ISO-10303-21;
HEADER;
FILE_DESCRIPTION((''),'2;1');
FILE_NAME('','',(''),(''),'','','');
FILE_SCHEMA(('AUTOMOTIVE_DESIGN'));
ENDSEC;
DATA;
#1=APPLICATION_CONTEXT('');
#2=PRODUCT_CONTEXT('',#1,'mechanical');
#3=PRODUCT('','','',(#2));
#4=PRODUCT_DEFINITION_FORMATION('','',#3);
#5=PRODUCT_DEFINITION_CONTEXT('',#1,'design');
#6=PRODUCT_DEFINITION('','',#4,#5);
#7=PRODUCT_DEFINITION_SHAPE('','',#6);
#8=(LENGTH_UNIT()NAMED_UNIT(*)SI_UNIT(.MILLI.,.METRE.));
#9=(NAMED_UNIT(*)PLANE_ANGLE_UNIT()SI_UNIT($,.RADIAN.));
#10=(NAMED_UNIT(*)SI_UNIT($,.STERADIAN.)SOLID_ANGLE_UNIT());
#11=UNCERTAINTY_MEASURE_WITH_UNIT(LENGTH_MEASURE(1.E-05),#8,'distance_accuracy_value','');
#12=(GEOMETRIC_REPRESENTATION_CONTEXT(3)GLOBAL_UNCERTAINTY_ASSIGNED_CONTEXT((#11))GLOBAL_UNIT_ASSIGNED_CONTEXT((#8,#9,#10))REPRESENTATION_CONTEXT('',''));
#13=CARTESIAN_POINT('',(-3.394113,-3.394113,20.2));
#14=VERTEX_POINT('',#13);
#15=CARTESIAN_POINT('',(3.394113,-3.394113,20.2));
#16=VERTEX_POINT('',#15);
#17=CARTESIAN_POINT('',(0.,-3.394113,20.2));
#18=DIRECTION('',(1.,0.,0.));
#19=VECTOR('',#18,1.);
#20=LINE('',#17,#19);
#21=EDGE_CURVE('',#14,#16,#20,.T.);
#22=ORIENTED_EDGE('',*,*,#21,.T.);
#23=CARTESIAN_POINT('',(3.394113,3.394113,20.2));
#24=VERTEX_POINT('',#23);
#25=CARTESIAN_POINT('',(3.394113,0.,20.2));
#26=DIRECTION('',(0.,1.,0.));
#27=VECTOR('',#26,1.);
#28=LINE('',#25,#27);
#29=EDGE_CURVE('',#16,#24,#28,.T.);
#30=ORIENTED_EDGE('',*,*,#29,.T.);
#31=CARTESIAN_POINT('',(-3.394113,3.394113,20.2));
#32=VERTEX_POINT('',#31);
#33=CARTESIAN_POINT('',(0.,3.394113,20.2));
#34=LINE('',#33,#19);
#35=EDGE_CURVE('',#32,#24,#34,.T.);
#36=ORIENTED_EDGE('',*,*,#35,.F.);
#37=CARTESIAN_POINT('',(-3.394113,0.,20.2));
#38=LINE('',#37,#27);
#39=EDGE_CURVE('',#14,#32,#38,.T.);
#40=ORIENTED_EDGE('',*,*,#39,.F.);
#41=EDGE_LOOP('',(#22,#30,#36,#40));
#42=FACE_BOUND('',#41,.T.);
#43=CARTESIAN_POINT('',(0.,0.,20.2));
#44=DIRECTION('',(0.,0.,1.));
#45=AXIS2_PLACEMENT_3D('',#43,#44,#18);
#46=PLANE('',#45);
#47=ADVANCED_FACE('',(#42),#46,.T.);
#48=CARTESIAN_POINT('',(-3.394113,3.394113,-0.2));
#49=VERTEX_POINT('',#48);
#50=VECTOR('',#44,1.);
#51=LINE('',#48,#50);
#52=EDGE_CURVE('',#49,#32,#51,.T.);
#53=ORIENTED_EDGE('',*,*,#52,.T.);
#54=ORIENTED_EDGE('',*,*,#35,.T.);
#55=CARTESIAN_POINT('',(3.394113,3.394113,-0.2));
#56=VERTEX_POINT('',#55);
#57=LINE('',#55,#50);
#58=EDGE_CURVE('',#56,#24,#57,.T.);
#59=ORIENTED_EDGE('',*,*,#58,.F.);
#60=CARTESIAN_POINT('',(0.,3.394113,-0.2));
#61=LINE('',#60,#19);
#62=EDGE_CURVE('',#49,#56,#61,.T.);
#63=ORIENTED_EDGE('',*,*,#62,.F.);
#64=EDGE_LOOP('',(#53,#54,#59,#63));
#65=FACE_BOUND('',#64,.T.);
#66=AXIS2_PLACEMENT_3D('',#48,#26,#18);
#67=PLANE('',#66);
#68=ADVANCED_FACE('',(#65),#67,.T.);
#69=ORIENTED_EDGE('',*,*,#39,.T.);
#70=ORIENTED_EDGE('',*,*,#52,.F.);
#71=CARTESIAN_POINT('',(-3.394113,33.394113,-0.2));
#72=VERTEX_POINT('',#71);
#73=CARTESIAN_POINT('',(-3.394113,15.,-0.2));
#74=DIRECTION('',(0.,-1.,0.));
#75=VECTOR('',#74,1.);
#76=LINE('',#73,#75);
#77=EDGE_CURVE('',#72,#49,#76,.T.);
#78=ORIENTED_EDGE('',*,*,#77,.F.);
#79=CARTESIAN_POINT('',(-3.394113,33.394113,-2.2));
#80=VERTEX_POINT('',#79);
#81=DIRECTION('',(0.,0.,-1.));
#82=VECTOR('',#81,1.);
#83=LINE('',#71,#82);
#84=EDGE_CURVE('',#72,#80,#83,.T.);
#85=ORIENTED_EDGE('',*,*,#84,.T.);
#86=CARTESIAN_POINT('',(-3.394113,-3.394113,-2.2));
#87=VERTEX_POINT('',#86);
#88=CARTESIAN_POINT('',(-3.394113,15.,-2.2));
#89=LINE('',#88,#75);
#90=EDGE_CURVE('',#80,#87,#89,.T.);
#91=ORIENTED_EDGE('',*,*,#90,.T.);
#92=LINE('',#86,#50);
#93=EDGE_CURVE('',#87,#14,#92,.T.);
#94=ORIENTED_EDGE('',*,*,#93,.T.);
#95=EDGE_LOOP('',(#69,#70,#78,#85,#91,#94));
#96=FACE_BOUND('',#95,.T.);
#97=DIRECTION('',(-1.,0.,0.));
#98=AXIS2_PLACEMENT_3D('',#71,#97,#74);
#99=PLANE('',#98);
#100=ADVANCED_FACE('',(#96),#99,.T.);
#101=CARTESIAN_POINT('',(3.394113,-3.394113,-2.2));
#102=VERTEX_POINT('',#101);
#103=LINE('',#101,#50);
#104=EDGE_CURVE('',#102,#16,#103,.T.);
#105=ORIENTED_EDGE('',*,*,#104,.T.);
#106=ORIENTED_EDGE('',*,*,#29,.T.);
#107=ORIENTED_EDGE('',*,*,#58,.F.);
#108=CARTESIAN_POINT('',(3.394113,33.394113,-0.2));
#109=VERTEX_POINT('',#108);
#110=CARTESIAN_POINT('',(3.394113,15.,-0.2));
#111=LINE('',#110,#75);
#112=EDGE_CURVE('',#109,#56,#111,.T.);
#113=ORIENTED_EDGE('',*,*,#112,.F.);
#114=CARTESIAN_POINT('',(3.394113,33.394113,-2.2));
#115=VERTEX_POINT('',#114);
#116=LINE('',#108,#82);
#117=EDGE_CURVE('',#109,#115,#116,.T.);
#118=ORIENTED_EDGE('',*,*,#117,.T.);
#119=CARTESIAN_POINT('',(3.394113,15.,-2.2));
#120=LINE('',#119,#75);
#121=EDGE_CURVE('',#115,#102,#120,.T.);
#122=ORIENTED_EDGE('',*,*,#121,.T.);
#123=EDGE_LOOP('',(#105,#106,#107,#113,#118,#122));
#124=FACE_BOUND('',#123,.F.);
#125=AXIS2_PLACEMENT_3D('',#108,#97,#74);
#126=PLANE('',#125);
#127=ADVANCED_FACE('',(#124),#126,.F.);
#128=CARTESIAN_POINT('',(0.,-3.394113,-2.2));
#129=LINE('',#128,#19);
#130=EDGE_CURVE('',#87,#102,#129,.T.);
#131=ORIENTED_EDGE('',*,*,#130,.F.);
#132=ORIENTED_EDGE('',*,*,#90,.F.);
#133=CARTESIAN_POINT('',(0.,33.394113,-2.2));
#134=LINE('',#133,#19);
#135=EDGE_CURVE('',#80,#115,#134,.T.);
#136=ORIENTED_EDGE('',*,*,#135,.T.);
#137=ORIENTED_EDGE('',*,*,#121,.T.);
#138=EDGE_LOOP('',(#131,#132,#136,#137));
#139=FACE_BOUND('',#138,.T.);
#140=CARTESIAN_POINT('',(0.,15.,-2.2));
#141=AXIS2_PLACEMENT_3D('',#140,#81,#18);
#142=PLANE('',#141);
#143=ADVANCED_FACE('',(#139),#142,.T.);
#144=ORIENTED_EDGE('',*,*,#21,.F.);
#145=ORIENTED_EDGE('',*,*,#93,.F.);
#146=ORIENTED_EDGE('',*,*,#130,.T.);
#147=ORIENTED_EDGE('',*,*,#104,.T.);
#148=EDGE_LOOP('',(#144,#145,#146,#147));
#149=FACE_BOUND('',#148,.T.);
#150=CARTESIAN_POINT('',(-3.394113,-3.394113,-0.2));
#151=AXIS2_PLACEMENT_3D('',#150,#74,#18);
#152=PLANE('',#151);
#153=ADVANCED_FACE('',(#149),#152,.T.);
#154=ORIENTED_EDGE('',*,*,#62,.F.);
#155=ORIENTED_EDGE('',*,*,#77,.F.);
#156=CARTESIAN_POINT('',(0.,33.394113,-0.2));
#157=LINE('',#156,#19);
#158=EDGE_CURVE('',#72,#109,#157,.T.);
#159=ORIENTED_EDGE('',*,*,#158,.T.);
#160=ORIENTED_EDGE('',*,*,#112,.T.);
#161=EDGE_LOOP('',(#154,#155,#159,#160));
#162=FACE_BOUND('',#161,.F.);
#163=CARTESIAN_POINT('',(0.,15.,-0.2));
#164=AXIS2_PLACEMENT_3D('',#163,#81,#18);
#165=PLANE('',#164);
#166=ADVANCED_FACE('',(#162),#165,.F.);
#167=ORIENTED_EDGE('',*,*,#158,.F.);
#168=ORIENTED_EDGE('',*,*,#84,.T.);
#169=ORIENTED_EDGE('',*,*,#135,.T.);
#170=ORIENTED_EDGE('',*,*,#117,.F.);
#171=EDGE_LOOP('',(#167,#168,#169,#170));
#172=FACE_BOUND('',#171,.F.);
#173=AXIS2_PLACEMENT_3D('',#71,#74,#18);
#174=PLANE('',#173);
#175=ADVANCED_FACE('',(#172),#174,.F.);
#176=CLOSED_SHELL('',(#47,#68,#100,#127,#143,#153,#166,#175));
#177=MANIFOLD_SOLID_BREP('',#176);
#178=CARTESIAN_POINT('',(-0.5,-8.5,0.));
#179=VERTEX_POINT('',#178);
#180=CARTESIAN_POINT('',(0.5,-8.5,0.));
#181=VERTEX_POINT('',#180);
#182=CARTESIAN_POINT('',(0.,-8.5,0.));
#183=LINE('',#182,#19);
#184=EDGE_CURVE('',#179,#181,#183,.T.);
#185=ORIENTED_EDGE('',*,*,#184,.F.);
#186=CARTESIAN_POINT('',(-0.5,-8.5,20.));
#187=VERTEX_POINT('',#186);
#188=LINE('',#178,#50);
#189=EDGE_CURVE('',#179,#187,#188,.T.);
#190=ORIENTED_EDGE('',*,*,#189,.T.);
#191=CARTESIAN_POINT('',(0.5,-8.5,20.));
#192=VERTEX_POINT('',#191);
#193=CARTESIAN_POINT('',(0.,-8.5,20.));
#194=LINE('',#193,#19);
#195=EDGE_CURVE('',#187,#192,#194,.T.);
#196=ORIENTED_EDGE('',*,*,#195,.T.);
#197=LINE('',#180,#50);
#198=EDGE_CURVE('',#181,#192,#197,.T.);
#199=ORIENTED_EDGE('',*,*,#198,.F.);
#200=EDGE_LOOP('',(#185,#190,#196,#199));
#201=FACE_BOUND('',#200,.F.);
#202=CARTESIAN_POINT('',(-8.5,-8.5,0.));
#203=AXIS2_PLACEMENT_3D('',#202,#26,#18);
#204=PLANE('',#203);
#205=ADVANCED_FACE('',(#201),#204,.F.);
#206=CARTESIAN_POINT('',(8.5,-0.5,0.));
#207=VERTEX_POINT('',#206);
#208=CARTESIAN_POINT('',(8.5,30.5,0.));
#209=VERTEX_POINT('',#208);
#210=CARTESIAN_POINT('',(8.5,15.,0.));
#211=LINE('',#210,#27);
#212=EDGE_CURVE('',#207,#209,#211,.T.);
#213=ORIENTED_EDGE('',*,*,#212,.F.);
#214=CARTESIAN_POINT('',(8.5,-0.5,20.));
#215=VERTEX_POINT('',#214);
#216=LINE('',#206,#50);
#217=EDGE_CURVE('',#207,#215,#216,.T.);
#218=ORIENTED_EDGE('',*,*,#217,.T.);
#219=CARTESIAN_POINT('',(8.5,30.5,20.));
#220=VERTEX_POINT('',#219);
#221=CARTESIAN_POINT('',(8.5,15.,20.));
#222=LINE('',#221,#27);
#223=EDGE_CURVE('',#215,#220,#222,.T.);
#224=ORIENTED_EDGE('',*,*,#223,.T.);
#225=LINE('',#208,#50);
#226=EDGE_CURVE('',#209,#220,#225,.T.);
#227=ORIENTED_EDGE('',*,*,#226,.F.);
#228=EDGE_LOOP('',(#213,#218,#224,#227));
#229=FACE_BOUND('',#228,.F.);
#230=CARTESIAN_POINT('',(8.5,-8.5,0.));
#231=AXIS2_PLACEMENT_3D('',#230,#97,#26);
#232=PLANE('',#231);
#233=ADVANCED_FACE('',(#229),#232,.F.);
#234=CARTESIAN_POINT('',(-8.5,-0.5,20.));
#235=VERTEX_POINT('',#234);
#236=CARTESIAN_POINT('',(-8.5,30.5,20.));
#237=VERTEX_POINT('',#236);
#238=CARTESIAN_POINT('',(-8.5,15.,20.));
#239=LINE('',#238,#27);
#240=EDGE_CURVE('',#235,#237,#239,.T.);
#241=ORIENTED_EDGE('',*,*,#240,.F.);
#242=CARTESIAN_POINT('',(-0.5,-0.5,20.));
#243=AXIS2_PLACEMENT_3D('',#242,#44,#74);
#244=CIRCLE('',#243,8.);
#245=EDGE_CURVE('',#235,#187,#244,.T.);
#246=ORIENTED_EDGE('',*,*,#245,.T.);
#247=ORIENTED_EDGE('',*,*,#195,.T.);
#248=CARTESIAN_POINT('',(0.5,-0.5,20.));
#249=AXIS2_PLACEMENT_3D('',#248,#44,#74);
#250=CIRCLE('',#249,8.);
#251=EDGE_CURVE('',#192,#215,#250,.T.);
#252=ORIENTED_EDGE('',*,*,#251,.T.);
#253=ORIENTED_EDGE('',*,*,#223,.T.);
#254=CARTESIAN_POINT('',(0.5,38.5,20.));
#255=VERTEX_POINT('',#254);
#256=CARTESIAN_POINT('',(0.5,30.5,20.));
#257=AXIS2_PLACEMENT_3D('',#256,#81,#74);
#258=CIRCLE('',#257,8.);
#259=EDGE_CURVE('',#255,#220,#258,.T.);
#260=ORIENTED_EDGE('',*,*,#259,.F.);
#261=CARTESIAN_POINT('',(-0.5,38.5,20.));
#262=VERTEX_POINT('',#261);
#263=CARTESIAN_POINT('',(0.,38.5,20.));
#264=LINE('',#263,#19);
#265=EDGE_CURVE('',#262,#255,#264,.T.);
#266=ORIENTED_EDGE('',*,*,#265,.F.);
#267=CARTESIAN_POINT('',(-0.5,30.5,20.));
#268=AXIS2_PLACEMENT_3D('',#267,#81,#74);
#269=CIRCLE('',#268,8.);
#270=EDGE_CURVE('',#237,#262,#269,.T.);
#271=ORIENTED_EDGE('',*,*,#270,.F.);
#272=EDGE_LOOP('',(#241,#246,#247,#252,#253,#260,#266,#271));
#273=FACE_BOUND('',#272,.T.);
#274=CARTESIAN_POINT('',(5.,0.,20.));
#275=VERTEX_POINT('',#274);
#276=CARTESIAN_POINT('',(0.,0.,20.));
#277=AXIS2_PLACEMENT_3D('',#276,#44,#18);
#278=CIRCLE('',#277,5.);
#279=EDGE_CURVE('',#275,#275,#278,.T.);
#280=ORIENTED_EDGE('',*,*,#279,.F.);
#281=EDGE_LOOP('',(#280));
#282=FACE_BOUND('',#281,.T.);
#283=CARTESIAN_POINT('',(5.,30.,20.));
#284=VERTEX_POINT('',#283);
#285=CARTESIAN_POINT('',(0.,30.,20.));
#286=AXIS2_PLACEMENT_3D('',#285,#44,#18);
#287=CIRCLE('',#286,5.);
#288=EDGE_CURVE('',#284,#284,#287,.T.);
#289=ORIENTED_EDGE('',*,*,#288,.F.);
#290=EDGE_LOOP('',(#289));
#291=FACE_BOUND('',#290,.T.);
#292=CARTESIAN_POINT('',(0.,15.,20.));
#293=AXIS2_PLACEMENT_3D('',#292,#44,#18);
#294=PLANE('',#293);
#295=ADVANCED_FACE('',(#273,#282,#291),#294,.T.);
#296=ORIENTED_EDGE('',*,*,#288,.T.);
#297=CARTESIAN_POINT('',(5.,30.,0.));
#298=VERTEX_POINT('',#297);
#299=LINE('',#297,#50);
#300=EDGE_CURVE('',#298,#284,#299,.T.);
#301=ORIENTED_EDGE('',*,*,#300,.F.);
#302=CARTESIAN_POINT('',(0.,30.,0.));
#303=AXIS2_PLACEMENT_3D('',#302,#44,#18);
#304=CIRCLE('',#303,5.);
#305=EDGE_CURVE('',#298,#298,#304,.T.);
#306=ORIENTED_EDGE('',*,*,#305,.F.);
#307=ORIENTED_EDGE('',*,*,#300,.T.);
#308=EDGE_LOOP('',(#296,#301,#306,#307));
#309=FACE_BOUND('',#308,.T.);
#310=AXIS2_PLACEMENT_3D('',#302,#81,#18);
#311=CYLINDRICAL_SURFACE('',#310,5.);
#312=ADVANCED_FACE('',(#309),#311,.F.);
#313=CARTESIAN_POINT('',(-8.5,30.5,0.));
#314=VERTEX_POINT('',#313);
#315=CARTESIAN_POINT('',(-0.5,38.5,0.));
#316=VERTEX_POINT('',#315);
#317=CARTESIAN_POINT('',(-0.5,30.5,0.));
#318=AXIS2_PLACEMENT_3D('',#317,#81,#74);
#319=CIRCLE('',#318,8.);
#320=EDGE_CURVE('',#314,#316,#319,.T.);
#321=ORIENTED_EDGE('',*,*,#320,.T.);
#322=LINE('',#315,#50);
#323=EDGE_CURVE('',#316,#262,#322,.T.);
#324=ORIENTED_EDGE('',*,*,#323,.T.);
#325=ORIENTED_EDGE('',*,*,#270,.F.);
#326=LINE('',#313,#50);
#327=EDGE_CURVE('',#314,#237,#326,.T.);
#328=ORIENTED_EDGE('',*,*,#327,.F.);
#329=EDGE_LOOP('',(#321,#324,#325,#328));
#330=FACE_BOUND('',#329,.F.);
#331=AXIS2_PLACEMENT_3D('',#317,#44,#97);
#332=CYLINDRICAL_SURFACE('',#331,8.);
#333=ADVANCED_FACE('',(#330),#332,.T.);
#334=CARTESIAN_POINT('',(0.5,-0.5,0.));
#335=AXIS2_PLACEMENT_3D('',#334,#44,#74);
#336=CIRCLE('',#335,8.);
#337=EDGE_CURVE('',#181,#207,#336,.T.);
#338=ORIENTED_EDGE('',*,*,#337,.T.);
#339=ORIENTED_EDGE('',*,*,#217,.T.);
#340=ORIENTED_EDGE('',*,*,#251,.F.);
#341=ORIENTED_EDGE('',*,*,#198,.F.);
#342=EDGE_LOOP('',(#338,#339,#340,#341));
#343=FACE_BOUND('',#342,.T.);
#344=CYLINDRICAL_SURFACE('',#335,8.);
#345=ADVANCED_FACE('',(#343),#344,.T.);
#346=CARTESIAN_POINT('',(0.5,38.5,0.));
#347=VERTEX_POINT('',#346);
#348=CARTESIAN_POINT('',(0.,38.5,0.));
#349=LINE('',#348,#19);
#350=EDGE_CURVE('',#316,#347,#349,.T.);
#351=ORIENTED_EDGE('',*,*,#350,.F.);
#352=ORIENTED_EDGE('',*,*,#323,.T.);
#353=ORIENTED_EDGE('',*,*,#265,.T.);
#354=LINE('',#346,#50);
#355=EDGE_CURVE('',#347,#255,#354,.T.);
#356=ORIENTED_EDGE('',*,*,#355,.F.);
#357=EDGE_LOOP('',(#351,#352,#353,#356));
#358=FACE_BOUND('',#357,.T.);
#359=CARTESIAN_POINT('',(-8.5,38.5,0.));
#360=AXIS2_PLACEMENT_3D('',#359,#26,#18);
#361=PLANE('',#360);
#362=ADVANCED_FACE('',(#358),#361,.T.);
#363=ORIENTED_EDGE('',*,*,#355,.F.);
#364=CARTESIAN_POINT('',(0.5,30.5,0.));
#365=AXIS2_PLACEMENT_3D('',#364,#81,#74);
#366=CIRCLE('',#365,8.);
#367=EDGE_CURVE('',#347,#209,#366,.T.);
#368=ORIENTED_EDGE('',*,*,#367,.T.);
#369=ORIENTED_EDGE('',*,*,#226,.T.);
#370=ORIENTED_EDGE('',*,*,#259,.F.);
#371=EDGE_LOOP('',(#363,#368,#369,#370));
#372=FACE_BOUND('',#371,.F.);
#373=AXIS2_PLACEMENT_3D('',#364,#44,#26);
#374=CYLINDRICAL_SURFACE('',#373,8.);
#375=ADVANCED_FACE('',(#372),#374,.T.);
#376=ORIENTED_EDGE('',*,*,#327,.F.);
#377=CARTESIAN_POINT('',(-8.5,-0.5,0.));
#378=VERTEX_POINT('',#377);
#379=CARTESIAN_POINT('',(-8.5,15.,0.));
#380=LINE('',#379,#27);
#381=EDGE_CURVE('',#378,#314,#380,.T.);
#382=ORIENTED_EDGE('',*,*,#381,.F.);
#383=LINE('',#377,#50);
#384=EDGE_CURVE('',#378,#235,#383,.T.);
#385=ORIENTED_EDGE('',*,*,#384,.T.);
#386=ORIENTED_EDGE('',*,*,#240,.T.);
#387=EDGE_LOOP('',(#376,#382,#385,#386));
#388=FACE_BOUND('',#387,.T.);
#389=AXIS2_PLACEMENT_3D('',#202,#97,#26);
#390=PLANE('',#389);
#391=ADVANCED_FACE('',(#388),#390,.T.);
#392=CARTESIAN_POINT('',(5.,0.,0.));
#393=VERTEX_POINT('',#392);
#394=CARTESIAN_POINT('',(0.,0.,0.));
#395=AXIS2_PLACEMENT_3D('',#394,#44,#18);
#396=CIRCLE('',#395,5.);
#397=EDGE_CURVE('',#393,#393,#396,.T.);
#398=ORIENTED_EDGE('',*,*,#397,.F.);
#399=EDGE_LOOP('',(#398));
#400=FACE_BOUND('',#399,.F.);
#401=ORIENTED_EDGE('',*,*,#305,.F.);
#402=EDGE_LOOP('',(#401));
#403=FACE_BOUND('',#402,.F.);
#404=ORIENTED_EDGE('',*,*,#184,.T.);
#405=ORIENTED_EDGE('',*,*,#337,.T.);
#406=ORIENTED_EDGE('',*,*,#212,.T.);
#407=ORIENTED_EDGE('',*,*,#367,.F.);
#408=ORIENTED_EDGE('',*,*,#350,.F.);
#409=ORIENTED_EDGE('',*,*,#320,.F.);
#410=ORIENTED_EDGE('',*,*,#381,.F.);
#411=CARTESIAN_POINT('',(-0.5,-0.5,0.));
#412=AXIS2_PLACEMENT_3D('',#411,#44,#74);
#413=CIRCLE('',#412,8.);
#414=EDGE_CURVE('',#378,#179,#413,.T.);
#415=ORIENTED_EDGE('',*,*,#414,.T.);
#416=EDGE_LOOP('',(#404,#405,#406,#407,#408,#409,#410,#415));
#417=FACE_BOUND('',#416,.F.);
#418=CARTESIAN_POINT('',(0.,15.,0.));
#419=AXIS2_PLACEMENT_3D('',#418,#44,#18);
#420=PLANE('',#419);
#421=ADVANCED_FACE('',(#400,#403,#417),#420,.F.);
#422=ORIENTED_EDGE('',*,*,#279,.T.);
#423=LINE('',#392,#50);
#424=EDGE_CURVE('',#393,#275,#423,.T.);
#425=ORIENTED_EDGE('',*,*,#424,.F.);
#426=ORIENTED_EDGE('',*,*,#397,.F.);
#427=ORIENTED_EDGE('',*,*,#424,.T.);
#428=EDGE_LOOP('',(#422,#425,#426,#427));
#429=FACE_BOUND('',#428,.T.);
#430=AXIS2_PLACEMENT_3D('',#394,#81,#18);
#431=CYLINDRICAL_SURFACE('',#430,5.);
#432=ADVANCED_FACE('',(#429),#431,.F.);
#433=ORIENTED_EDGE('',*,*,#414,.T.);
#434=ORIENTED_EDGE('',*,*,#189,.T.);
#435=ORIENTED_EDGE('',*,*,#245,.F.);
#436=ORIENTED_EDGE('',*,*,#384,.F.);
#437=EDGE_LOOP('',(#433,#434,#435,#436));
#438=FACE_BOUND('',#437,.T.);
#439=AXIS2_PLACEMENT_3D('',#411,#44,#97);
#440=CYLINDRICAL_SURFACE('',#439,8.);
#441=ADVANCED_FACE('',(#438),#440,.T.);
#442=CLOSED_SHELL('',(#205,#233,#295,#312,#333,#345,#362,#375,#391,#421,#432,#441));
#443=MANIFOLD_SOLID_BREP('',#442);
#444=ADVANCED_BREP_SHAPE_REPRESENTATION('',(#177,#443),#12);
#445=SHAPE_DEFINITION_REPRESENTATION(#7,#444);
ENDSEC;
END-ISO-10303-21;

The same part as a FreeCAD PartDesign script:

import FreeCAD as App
import Part
import Sketcher


def edges_at(feature, points):
    """Names of the edges that pass closest to the given points."""
    edges = feature.Shape.Edges
    near = lambda p: min(range(len(edges)), key=lambda i: edges[i].distToShape(Part.Vertex(*p))[0])
    return sorted({f"Edge{near(p) + 1}" for p in points})

doc = App.newDocument("Part")
body = doc.addObject("PartDesign::Body", "Body")

sketch1 = body.newObject("Sketcher::SketchObject", "Sketch")
sketch1.AttachmentSupport = (doc.getObject("XY_Plane"), [""])
sketch1.MapMode = "FlatFace"
sketch1.addGeometry(Part.LineSegment(App.Vector(-8, 38, 0), App.Vector(-8, -8, 0)), False)
sketch1.addGeometry(Part.LineSegment(App.Vector(-8, -8, 0), App.Vector(8, -8, 0)), False)
sketch1.addGeometry(Part.LineSegment(App.Vector(8, -8, 0), App.Vector(8, 38, 0)), False)
sketch1.addGeometry(Part.LineSegment(App.Vector(8, 38, 0), App.Vector(-8, 38, 0)), False)
sketch1.addGeometry(Part.Circle(App.Vector(0, 0, 0), App.Vector(0, 0, 1), 5), False)
sketch1.addGeometry(Part.Circle(App.Vector(0, 30, 0), App.Vector(0, 0, 1), 5), False)
sketch1.addConstraint(Sketcher.Constraint("Coincident", 0, 2, 1, 1))
sketch1.addConstraint(Sketcher.Constraint("Coincident", 1, 2, 2, 1))
sketch1.addConstraint(Sketcher.Constraint("Coincident", 2, 2, 3, 1))
sketch1.addConstraint(Sketcher.Constraint("Coincident", 3, 2, 0, 1))
sketch1.addConstraint(Sketcher.Constraint("Vertical", 0))
sketch1.addConstraint(Sketcher.Constraint("Horizontal", 1))
sketch1.addConstraint(Sketcher.Constraint("Vertical", 2))
sketch1.addConstraint(Sketcher.Constraint("Horizontal", 3))
sketch1.addConstraint(Sketcher.Constraint("Coincident", 4, 3, -1, 1))
sketch1.addConstraint(Sketcher.Constraint("Equal", 4, 5))
sketch1.addConstraint(Sketcher.Constraint("PointOnObject", 5, 3, -2))
sketch1.addConstraint(Sketcher.Constraint("Diameter", 4, 10.0))
sketch1.addConstraint(Sketcher.Constraint("DistanceX", 1, 1, 1, 2, 17.0))
sketch1.addConstraint(Sketcher.Constraint("DistanceY", 0, 2, 0, 1, 47.0))
sketch1.addConstraint(Sketcher.Constraint("DistanceY", -1, 1, 5, 3, 30.0))
sketch1.addConstraint(Sketcher.Constraint("DistanceX", 0, 2, -1, 1, 8.5))
sketch1.addConstraint(Sketcher.Constraint("DistanceY", 0, 2, -1, 1, 8.5))
pad1 = body.newObject("PartDesign::Pad", "Pad")
pad1.Profile = sketch1
pad1.Length = 20
doc.recompute()

fillet = body.newObject("PartDesign::Fillet", "Fillet")
fillet.Base = (pad1, edges_at(pad1, [
    (8.5, -8.5, 10),
    (-8.5, -8.5, 10),
    (8.5, 38.5, 10),
    (-8.5, 38.5, 10),
]))
fillet.Radius = 8
body2 = doc.addObject("PartDesign::Body", "Body001")

sketch2 = body2.newObject("Sketcher::SketchObject", "Sketch001")
sketch2.AttachmentSupport = (doc.getObject("XY_Plane001"), [""])
sketch2.MapMode = "FlatFace"
sketch2.AttachmentOffset = App.Placement(App.Vector(0, 0, -0.2), App.Rotation())
sketch2.addGeometry(Part.LineSegment(App.Vector(-3, 3, 0), App.Vector(-3, -3, 0)), False)
sketch2.addGeometry(Part.LineSegment(App.Vector(-3, -3, 0), App.Vector(3, -3, 0)), False)
sketch2.addGeometry(Part.LineSegment(App.Vector(3, -3, 0), App.Vector(3, 3, 0)), False)
sketch2.addGeometry(Part.LineSegment(App.Vector(3, 3, 0), App.Vector(-3, 3, 0)), False)
sketch2.addConstraint(Sketcher.Constraint("Coincident", 0, 2, 1, 1))
sketch2.addConstraint(Sketcher.Constraint("Coincident", 1, 2, 2, 1))
sketch2.addConstraint(Sketcher.Constraint("Coincident", 2, 2, 3, 1))
sketch2.addConstraint(Sketcher.Constraint("Coincident", 3, 2, 0, 1))
sketch2.addConstraint(Sketcher.Constraint("Vertical", 0))
sketch2.addConstraint(Sketcher.Constraint("Horizontal", 1))
sketch2.addConstraint(Sketcher.Constraint("Vertical", 2))
sketch2.addConstraint(Sketcher.Constraint("Horizontal", 3))
sketch2.addConstraint(Sketcher.Constraint("Symmetric", 0, 2, 2, 2, -1, 1))
sketch2.addConstraint(Sketcher.Constraint("Equal", 3, 0))
sketch2.addConstraint(Sketcher.Constraint("DistanceX", 1, 1, 1, 2, 6.788226))
pad2 = body2.newObject("PartDesign::Pad", "Pad001")
pad2.Profile = sketch2
pad2.Length = 20.4

sketch3 = body2.newObject("Sketcher::SketchObject", "Sketch002")
sketch3.AttachmentSupport = (doc.getObject("XY_Plane001"), [""])
sketch3.MapMode = "FlatFace"
sketch3.AttachmentOffset = App.Placement(App.Vector(0, 0, -0.2), App.Rotation())
sketch3.addGeometry(Part.LineSegment(App.Vector(-3, -3, 0), App.Vector(-3, 33, 0)), False)
sketch3.addGeometry(Part.LineSegment(App.Vector(-3, 33, 0), App.Vector(3, 33, 0)), False)
sketch3.addGeometry(Part.LineSegment(App.Vector(3, 33, 0), App.Vector(3, -3, 0)), False)
sketch3.addGeometry(Part.LineSegment(App.Vector(3, -3, 0), App.Vector(-3, -3, 0)), False)
sketch3.addConstraint(Sketcher.Constraint("Coincident", 0, 2, 1, 1))
sketch3.addConstraint(Sketcher.Constraint("Coincident", 1, 2, 2, 1))
sketch3.addConstraint(Sketcher.Constraint("Coincident", 2, 2, 3, 1))
sketch3.addConstraint(Sketcher.Constraint("Coincident", 3, 2, 0, 1))
sketch3.addConstraint(Sketcher.Constraint("Vertical", 0))
sketch3.addConstraint(Sketcher.Constraint("Horizontal", 1))
sketch3.addConstraint(Sketcher.Constraint("Vertical", 2))
sketch3.addConstraint(Sketcher.Constraint("Horizontal", 3))
sketch3.addConstraint(Sketcher.Constraint("DistanceX", 1, 1, 1, 2, 6.788226))
sketch3.addConstraint(Sketcher.Constraint("DistanceY", 0, 1, 0, 2, 36.788226))
sketch3.addConstraint(Sketcher.Constraint("DistanceX", 0, 2, -1, 1, 3.394113))
sketch3.addConstraint(Sketcher.Constraint("DistanceY", -1, 1, 0, 2, 33.394113))
pad3 = body2.newObject("PartDesign::Pad", "Pad002")
pad3.Profile = sketch3
pad3.Length = 2
pad3.Reversed = True

doc.recompute()
